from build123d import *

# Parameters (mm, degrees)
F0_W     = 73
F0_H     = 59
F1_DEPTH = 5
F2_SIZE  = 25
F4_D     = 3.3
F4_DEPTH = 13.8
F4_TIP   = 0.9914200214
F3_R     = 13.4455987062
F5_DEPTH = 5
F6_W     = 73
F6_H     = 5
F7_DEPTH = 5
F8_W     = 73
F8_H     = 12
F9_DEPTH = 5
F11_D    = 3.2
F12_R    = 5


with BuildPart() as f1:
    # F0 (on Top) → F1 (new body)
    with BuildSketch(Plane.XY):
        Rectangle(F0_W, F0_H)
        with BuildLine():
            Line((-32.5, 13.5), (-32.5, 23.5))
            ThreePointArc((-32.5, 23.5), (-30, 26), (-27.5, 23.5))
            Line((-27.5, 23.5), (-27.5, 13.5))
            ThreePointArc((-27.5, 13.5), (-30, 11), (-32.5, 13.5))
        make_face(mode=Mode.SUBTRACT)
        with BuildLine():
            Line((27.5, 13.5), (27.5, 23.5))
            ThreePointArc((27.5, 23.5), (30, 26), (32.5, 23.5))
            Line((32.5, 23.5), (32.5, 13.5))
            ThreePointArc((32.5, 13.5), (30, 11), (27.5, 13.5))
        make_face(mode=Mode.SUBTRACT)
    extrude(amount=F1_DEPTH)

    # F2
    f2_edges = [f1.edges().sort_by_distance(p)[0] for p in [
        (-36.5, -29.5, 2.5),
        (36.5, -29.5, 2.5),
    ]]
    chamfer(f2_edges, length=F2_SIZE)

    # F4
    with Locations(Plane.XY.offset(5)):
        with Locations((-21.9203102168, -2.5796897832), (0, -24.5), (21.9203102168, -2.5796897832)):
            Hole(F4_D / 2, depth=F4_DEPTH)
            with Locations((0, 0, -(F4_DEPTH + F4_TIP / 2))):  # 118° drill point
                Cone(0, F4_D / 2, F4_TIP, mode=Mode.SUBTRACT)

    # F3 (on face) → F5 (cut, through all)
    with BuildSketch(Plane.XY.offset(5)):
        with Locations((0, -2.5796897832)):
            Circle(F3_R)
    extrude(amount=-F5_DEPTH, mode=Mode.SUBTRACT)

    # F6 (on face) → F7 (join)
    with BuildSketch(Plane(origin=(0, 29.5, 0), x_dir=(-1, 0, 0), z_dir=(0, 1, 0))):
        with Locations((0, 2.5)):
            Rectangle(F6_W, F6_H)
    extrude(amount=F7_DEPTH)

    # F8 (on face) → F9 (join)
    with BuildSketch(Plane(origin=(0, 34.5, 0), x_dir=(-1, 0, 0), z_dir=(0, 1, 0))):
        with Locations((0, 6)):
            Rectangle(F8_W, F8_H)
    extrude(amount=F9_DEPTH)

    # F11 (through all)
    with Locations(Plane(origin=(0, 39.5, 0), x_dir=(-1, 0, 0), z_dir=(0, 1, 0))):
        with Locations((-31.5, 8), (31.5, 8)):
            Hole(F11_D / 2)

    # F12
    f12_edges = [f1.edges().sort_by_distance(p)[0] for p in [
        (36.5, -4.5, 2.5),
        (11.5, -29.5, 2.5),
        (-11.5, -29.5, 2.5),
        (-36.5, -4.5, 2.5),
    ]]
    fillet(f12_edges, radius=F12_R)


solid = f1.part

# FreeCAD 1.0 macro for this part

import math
import FreeCAD as App
import Part
import Sketcher


def edges_at(feature, points):
    """Names of the edges that pass closest to the given points."""
    edges = feature.Shape.Edges
    near = lambda p: min(range(len(edges)), key=lambda i: edges[i].distToShape(Part.Vertex(*p))[0])
    return sorted({f"Edge{near(p) + 1}" for p in points})

doc = App.newDocument("Part")
body = doc.addObject("PartDesign::Body", "Body")

# Sketch on XY plane
sketch1 = body.newObject("Sketcher::SketchObject", "Sketch")
sketch1.AttachmentSupport = (doc.getObject("XY_Plane"), [""])
sketch1.MapMode = "FlatFace"
sketch1.addGeometry(Part.LineSegment(App.Vector(-36.5, 29.5, 0), App.Vector(-36.5, -29.5, 0)), False)
sketch1.addGeometry(Part.LineSegment(App.Vector(-36.5, -29.5, 0), App.Vector(36.5, -29.5, 0)), False)
sketch1.addGeometry(Part.LineSegment(App.Vector(36.5, -29.5, 0), App.Vector(36.5, 29.5, 0)), False)
sketch1.addGeometry(Part.LineSegment(App.Vector(36.5, 29.5, 0), App.Vector(-36.5, 29.5, 0)), False)
sketch1.addGeometry(Part.ArcOfCircle(Part.Circle(App.Vector(-30, 13.5, 0), App.Vector(0, 0, 1), 2.5), math.radians(180), math.radians(360)), False)
sketch1.addGeometry(Part.LineSegment(App.Vector(-32.5, 13.5, 0), App.Vector(-32.5, 23.5, 0)), False)
sketch1.addGeometry(Part.ArcOfCircle(Part.Circle(App.Vector(-30, 23.5, 0), App.Vector(0, 0, 1), 2.5), math.radians(0), math.radians(180)), False)
sketch1.addGeometry(Part.LineSegment(App.Vector(-27.5, 23.5, 0), App.Vector(-27.5, 13.5, 0)), False)
sketch1.addGeometry(Part.ArcOfCircle(Part.Circle(App.Vector(30, 13.5, 0), App.Vector(0, 0, 1), 2.5), math.radians(180), math.radians(360)), False)
sketch1.addGeometry(Part.LineSegment(App.Vector(27.5, 13.5, 0), App.Vector(27.5, 23.5, 0)), False)
sketch1.addGeometry(Part.ArcOfCircle(Part.Circle(App.Vector(30, 23.5, 0), App.Vector(0, 0, 1), 2.5), math.radians(0), math.radians(180)), False)
sketch1.addGeometry(Part.LineSegment(App.Vector(32.5, 23.5, 0), App.Vector(32.5, 13.5, 0)), False)
sketch1.addConstraint(Sketcher.Constraint("Coincident", 0, 2, 1, 1))
sketch1.addConstraint(Sketcher.Constraint("Coincident", 1, 2, 2, 1))
sketch1.addConstraint(Sketcher.Constraint("Coincident", 2, 2, 3, 1))
sketch1.addConstraint(Sketcher.Constraint("Coincident", 3, 2, 0, 1))
sketch1.addConstraint(Sketcher.Constraint("Tangent", 4, 1, 5, 1))
sketch1.addConstraint(Sketcher.Constraint("Tangent", 5, 2, 6, 2))
sketch1.addConstraint(Sketcher.Constraint("Tangent", 6, 1, 7, 1))
sketch1.addConstraint(Sketcher.Constraint("Tangent", 7, 2, 4, 2))
sketch1.addConstraint(Sketcher.Constraint("Tangent", 8, 1, 9, 1))
sketch1.addConstraint(Sketcher.Constraint("Tangent", 9, 2, 10, 2))
sketch1.addConstraint(Sketcher.Constraint("Tangent", 10, 1, 11, 1))
sketch1.addConstraint(Sketcher.Constraint("Tangent", 11, 2, 8, 2))
sketch1.addConstraint(Sketcher.Constraint("Vertical", 0))
sketch1.addConstraint(Sketcher.Constraint("Horizontal", 1))
sketch1.addConstraint(Sketcher.Constraint("Vertical", 2))
sketch1.addConstraint(Sketcher.Constraint("Horizontal", 3))
sketch1.addConstraint(Sketcher.Constraint("Vertical", 5))
sketch1.addConstraint(Sketcher.Constraint("Vertical", 7))
sketch1.addConstraint(Sketcher.Constraint("Vertical", 9))
sketch1.addConstraint(Sketcher.Constraint("Vertical", 11))
sketch1.addConstraint(Sketcher.Constraint("Equal", 6, 8))
sketch1.addConstraint(Sketcher.Constraint("Symmetric", 0, 2, 2, 2, -1, 1))
sketch1.addConstraint(Sketcher.Constraint("Symmetric", 4, 3, 8, 3, -2))
sketch1.addConstraint(Sketcher.Constraint("Horizontal", 6, 3, 10, 3))
sketch1.addConstraint(Sketcher.Constraint("Radius", 4, 2.5))
sketch1.addConstraint(Sketcher.Constraint("DistanceX", 1, 1, 1, 2, 73.0))
sketch1.addConstraint(Sketcher.Constraint("DistanceY", 0, 2, 0, 1, 59.0))
sketch1.addConstraint(Sketcher.Constraint("DistanceY", 5, 1, 5, 2, 10.0))
sketch1.addConstraint(Sketcher.Constraint("DistanceX", 4, 3, -1, 1, 30.0))
sketch1.addConstraint(Sketcher.Constraint("DistanceY", 0, 2, 4, 3, 43.0))
pad1 = body.newObject("PartDesign::Pad", "Pad")
pad1.Profile = sketch1
pad1.Length = 5
doc.recompute()

chamfer = body.newObject("PartDesign::Chamfer", "Chamfer")
chamfer.Base = (pad1, edges_at(pad1, [(-36.5, -29.5, 2.5), (36.5, -29.5, 2.5)]))
chamfer.Size = 25

# Sketch on XY plane
sketch2 = body.newObject("Sketcher::SketchObject", "Sketch001")
sketch2.AttachmentSupport = (doc.getObject("XY_Plane"), [""])
sketch2.MapMode = "FlatFace"
sketch2.AttachmentOffset = App.Placement(App.Vector(0, 0, 5), App.Rotation())
sketch2.addGeometry(Part.Circle(App.Vector(-21.9, -2.6, 0), App.Vector(0, 0, 1), 1.6), False)
sketch2.addGeometry(Part.Circle(App.Vector(0, -24.5, 0), App.Vector(0, 0, 1), 1.6), False)
sketch2.addGeometry(Part.Circle(App.Vector(21.9, -2.6, 0), App.Vector(0, 0, 1), 1.6), False)
sketch2.addConstraint(Sketcher.Constraint("Equal", 0, 1))
sketch2.addConstraint(Sketcher.Constraint("Equal", 1, 2))
sketch2.addConstraint(Sketcher.Constraint("Symmetric", 0, 3, 2, 3, -2))
sketch2.addConstraint(Sketcher.Constraint("PointOnObject", 1, 3, -2))
sketch2.addConstraint(Sketcher.Constraint("Diameter", 0, 3.3))
sketch2.addConstraint(Sketcher.Constraint("DistanceY", 1, 3, -1, 1, 24.5))
sketch2.addConstraint(Sketcher.Constraint("DistanceX", 0, 3, -1, 1, 21.92031))
sketch2.addConstraint(Sketcher.Constraint("DistanceY", 0, 3, -1, 1, 2.57969))
doc.recompute()
hole = body.newObject("PartDesign::Hole", "Hole")
hole.Profile = sketch2
hole.ThreadType = "None"
hole.Diameter = 3.3
hole.DepthType = "Dimension"
hole.Depth = 13.8
hole.DrillPoint = "Angled"
hole.DrillPointAngle = 118

# Sketch on XY plane
sketch3 = body.newObject("Sketcher::SketchObject", "Sketch002")
sketch3.AttachmentSupport = (doc.getObject("XY_Plane"), [""])
sketch3.MapMode = "FlatFace"
sketch3.AttachmentOffset = App.Placement(App.Vector(0, 0, 5), App.Rotation())
sketch3.addGeometry(Part.Circle(App.Vector(0, -3, 0), App.Vector(0, 0, 1), 13), False)
sketch3.addConstraint(Sketcher.Constraint("PointOnObject", 0, 3, -2))
sketch3.addConstraint(Sketcher.Constraint("Diameter", 0, 26.891197))
sketch3.addConstraint(Sketcher.Constraint("DistanceY", 0, 3, -1, 1, 2.57969))
pocket1 = body.newObject("PartDesign::Pocket", "Pocket")
pocket1.Profile = sketch3
pocket1.Type = "ThroughAll"

# Sketch on XZ plane
sketch4 = body.newObject("Sketcher::SketchObject", "Sketch003")
sketch4.AttachmentSupport = (doc.getObject("XZ_Plane"), [""])
sketch4.MapMode = "FlatFace"
sketch4.AttachmentOffset = App.Placement(App.Vector(0, 0, -29.5), App.Rotation())
sketch4.addGeometry(Part.LineSegment(App.Vector(36, 5, 0), App.Vector(36, 0, 0)), False)
sketch4.addGeometry(Part.LineSegment(App.Vector(36, 0, 0), App.Vector(-36, 0, 0)), False)
sketch4.addGeometry(Part.LineSegment(App.Vector(-36, 0, 0), App.Vector(-36, 5, 0)), False)
sketch4.addGeometry(Part.LineSegment(App.Vector(-36, 5, 0), App.Vector(36, 5, 0)), False)
sketch4.addConstraint(Sketcher.Constraint("Coincident", 0, 2, 1, 1))
sketch4.addConstraint(Sketcher.Constraint("Coincident", 1, 2, 2, 1))
sketch4.addConstraint(Sketcher.Constraint("Coincident", 2, 2, 3, 1))
sketch4.addConstraint(Sketcher.Constraint("Coincident", 3, 2, 0, 1))
sketch4.addConstraint(Sketcher.Constraint("Vertical", 0))
sketch4.addConstraint(Sketcher.Constraint("Horizontal", 1))
sketch4.addConstraint(Sketcher.Constraint("Vertical", 2))
sketch4.addConstraint(Sketcher.Constraint("Horizontal", 3))
sketch4.addConstraint(Sketcher.Constraint("Symmetric", 0, 2, 1, 2, -1, 1))
sketch4.addConstraint(Sketcher.Constraint("DistanceX", 1, 2, 1, 1, 73.0))
sketch4.addConstraint(Sketcher.Constraint("DistanceY", 0, 2, 0, 1, 5.0))
pad2 = body.newObject("PartDesign::Pad", "Pad001")
pad2.Profile = sketch4
pad2.Length = 5
pad2.Reversed = True

# Sketch on XZ plane
sketch5 = body.newObject("Sketcher::SketchObject", "Sketch004")
sketch5.AttachmentSupport = (doc.getObject("XZ_Plane"), [""])
sketch5.MapMode = "FlatFace"
sketch5.AttachmentOffset = App.Placement(App.Vector(0, 0, -34.5), App.Rotation())
sketch5.addGeometry(Part.LineSegment(App.Vector(36, 12, 0), App.Vector(36, 0, 0)), False)
sketch5.addGeometry(Part.LineSegment(App.Vector(36, 0, 0), App.Vector(-36, 0, 0)), False)
sketch5.addGeometry(Part.LineSegment(App.Vector(-36, 0, 0), App.Vector(-36, 12, 0)), False)
sketch5.addGeometry(Part.LineSegment(App.Vector(-36, 12, 0), App.Vector(36, 12, 0)), False)
sketch5.addConstraint(Sketcher.Constraint("Coincident", 0, 2, 1, 1))
sketch5.addConstraint(Sketcher.Constraint("Coincident", 1, 2, 2, 1))
sketch5.addConstraint(Sketcher.Constraint("Coincident", 2, 2, 3, 1))
sketch5.addConstraint(Sketcher.Constraint("Coincident", 3, 2, 0, 1))
sketch5.addConstraint(Sketcher.Constraint("Vertical", 0))
sketch5.addConstraint(Sketcher.Constraint("Horizontal", 1))
sketch5.addConstraint(Sketcher.Constraint("Vertical", 2))
sketch5.addConstraint(Sketcher.Constraint("Horizontal", 3))
sketch5.addConstraint(Sketcher.Constraint("Symmetric", 0, 2, 1, 2, -1, 1))
sketch5.addConstraint(Sketcher.Constraint("DistanceX", 1, 2, 1, 1, 73.0))
sketch5.addConstraint(Sketcher.Constraint("DistanceY", 0, 2, 0, 1, 12.0))
pad3 = body.newObject("PartDesign::Pad", "Pad002")
pad3.Profile = sketch5
pad3.Length = 5
pad3.Reversed = True

# Sketch on XZ plane
sketch6 = body.newObject("Sketcher::SketchObject", "Sketch005")
sketch6.AttachmentSupport = (doc.getObject("XZ_Plane"), [""])
sketch6.MapMode = "FlatFace"
sketch6.AttachmentOffset = App.Placement(App.Vector(0, 0, -39.5), App.Rotation())
sketch6.addGeometry(Part.Circle(App.Vector(31.5, 8, 0), App.Vector(0, 0, 1), 1.6), False)
sketch6.addGeometry(Part.Circle(App.Vector(-31.5, 8, 0), App.Vector(0, 0, 1), 1.6), False)
sketch6.addConstraint(Sketcher.Constraint("Equal", 0, 1))
sketch6.addConstraint(Sketcher.Constraint("Symmetric", 0, 3, 1, 3, -2))
sketch6.addConstraint(Sketcher.Constraint("Diameter", 0, 3.2))
sketch6.addConstraint(Sketcher.Constraint("DistanceY", -1, 1, 0, 3, 8.0))
sketch6.addConstraint(Sketcher.Constraint("DistanceX", 1, 3, 0, 3, 63.0))
doc.recompute()
hole2 = body.newObject("PartDesign::Hole", "Hole001")
hole2.Profile = sketch6
hole2.ThreadType = "None"
hole2.Diameter = 3.2
hole2.DepthType = "ThroughAll"
hole2.Reversed = True
doc.recompute()

fillet = body.newObject("PartDesign::Fillet", "Fillet")
fillet.Base = (hole2, edges_at(hole2, [
    (36.5, -4.5, 2.5),
    (11.5, -29.5, 2.5),
    (-11.5, -29.5, 2.5),
    (-36.5, -4.5, 2.5),
]))
fillet.Radius = 5

doc.recompute()
